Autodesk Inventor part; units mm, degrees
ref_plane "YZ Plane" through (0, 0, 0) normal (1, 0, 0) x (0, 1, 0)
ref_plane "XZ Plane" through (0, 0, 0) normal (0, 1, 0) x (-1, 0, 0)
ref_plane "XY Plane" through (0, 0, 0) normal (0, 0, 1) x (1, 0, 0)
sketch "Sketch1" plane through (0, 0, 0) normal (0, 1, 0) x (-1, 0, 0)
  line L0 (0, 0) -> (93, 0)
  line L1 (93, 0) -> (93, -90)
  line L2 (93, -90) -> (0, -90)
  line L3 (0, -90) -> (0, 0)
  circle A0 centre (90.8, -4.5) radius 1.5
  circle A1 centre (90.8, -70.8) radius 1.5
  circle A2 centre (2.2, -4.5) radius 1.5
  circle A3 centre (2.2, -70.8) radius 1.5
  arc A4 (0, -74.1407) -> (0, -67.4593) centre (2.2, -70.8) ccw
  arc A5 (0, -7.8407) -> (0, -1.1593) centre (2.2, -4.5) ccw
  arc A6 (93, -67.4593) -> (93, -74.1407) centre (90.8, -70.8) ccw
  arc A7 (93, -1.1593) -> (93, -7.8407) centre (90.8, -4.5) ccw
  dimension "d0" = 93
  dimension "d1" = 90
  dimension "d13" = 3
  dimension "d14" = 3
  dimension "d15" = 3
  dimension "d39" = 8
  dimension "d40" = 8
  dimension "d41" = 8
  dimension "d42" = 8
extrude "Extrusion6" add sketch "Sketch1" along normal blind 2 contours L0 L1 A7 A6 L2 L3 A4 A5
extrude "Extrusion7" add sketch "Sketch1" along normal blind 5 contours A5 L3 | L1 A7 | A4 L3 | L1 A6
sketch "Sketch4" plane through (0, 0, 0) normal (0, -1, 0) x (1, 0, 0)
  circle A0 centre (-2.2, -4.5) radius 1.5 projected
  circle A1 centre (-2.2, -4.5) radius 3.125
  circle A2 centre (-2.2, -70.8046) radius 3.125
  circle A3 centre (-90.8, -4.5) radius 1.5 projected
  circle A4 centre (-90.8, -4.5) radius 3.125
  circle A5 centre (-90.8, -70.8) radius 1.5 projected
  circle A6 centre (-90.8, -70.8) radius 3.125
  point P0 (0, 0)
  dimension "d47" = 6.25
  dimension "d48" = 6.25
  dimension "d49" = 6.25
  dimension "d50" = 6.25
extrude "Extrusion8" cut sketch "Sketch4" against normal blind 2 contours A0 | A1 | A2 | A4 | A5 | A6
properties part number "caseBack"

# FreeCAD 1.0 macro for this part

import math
import FreeCAD as App
import Part
import Sketcher

doc = App.newDocument("Part")
body = doc.addObject("PartDesign::Body", "Body")

# Sketch on XZ plane
sketch1 = doc.addObject("Sketcher::SketchObject", "Sketch")
body.addObject(sketch1)
sketch1.AttachmentSupport = (doc.XZ_Plane, [""])
sketch1.MapMode = "FlatFace"
sketch1.addGeometry(Part.LineSegment(App.Vector(-93, 0, 0), App.Vector(0, 0, 0)), False)
sketch1.addGeometry(Part.LineSegment(App.Vector(0, 0, 0), App.Vector(0, -1.2, 0)), False)
sketch1.addGeometry(Part.ArcOfCircle(Part.Circle(App.Vector(-2.2, -4.5, 0), App.Vector(0, 0, 1), 4), math.radians(57), math.radians(303)), False)
sketch1.addGeometry(Part.LineSegment(App.Vector(0, -7.8, 0), App.Vector(0, -67.5, 0)), False)
sketch1.addGeometry(Part.ArcOfCircle(Part.Circle(App.Vector(-2.2, -70.8, 0), App.Vector(0, 0, 1), 4), math.radians(57), math.radians(303)), False)
sketch1.addGeometry(Part.LineSegment(App.Vector(0, -74.1, 0), App.Vector(0, -90, 0)), False)
sketch1.addGeometry(Part.LineSegment(App.Vector(0, -90, 0), App.Vector(-93, -90, 0)), False)
sketch1.addGeometry(Part.LineSegment(App.Vector(-93, -90, 0), App.Vector(-93, -74.1, 0)), False)
sketch1.addGeometry(Part.ArcOfCircle(Part.Circle(App.Vector(-90.8, -70.8, 0), App.Vector(0, 0, 1), 4), math.radians(-123), math.radians(123)), False)
sketch1.addGeometry(Part.LineSegment(App.Vector(-93, -67.5, 0), App.Vector(-93, -7.8, 0)), False)
sketch1.addGeometry(Part.ArcOfCircle(Part.Circle(App.Vector(-90.8, -4.5, 0), App.Vector(0, 0, 1), 4), math.radians(-123), math.radians(123)), False)
sketch1.addGeometry(Part.LineSegment(App.Vector(-93, -1.2, 0), App.Vector(-93, 0, 0)), False)
sketch1.addConstraint(Sketcher.Constraint("Coincident", 0, 2, 1, 1))
sketch1.addConstraint(Sketcher.Constraint("Coincident", 1, 2, 2, 1))
sketch1.addConstraint(Sketcher.Constraint("Coincident", 2, 2, 3, 1))
sketch1.addConstraint(Sketcher.Constraint("Coincident", 3, 2, 4, 1))
sketch1.addConstraint(Sketcher.Constraint("Coincident", 4, 2, 5, 1))
sketch1.addConstraint(Sketcher.Constraint("Coincident", 5, 2, 6, 1))
sketch1.addConstraint(Sketcher.Constraint("Coincident", 6, 2, 7, 1))
sketch1.addConstraint(Sketcher.Constraint("Coincident", 7, 2, 8, 1))
sketch1.addConstraint(Sketcher.Constraint("Coincident", 8, 2, 9, 1))
sketch1.addConstraint(Sketcher.Constraint("Coincident", 9, 2, 10, 1))
sketch1.addConstraint(Sketcher.Constraint("Coincident", 10, 2, 11, 1))
sketch1.addConstraint(Sketcher.Constraint("Coincident", 11, 2, 0, 1))
sketch1.addConstraint(Sketcher.Constraint("Horizontal", 0))
sketch1.addConstraint(Sketcher.Constraint("Vertical", 1))
sketch1.addConstraint(Sketcher.Constraint("Vertical", 3))
sketch1.addConstraint(Sketcher.Constraint("Vertical", 5))
sketch1.addConstraint(Sketcher.Constraint("Horizontal", 6))
sketch1.addConstraint(Sketcher.Constraint("Vertical", 7))
sketch1.addConstraint(Sketcher.Constraint("Vertical", 9))
sketch1.addConstraint(Sketcher.Constraint("Vertical", 11))
sketch1.addConstraint(Sketcher.Constraint("Coincident", 0, 2, -1, 1))
sketch1.addConstraint(Sketcher.Constraint("Equal", 2, 4))
sketch1.addConstraint(Sketcher.Constraint("Equal", 4, 8))
sketch1.addConstraint(Sketcher.Constraint("Equal", 8, 10))
sketch1.addConstraint(Sketcher.Constraint("PointOnObject", 2, 2, -2))
sketch1.addConstraint(Sketcher.Constraint("PointOnObject", 4, 2, -2))
sketch1.addConstraint(Sketcher.Constraint("Horizontal", 4, 3, 8, 3))
sketch1.addConstraint(Sketcher.Constraint("Horizontal", 2, 3, 10, 3))
sketch1.addConstraint(Sketcher.Constraint("Horizontal", 4, 2, 7, 2))
sketch1.addConstraint(Sketcher.Constraint("Horizontal", 3, 2, 8, 2))
sketch1.addConstraint(Sketcher.Constraint("Horizontal", 2, 2, 9, 2))
sketch1.addConstraint(Sketcher.Constraint("Horizontal", 1, 2, 10, 2))
sketch1.addConstraint(Sketcher.Constraint("Vertical", 2, 3, 4, 3))
sketch1.addConstraint(Sketcher.Constraint("Radius", 2, 4.0))
sketch1.addConstraint(Sketcher.Constraint("DistanceX", 0, 1, 0, 2, 93.0))
sketch1.addConstraint(Sketcher.Constraint("DistanceY", 5, 2, -1, 1, 90.0))
sketch1.addConstraint(Sketcher.Constraint("DistanceX", 2, 3, -1, 1, 2.2))
sketch1.addConstraint(Sketcher.Constraint("DistanceY", 2, 3, -1, 1, 4.5))
sketch1.addConstraint(Sketcher.Constraint("DistanceY", 4, 3, -1, 1, 70.8))
pad1 = doc.addObject("PartDesign::Pad", "Pad")
body.addObject(pad1)
pad1.Profile = sketch1
pad1.Length = 2
pad1.Reversed = True

# Sketch on XZ plane
sketch2 = doc.addObject("Sketcher::SketchObject", "Sketch001")
body.addObject(sketch2)
sketch2.AttachmentSupport = (doc.XZ_Plane, [""])
sketch2.MapMode = "FlatFace"
sketch2.addGeometry(Part.ArcOfCircle(Part.Circle(App.Vector(-2.2, -4.5, 0), App.Vector(0, 0, 1), 4), math.radians(57), math.radians(303)), False)
sketch2.addGeometry(Part.LineSegment(App.Vector(0, -1.2, 0), App.Vector(0, -7.8, 0)), False)
sketch2.addGeometry(Part.Circle(App.Vector(-2.2, -4.5, 0), App.Vector(0, 0, 1), 1.5), False)
sketch2.addGeometry(Part.LineSegment(App.Vector(-93, -7.8, 0), App.Vector(-93, -1.2, 0)), False)
sketch2.addGeometry(Part.ArcOfCircle(Part.Circle(App.Vector(-90.8, -4.5, 0), App.Vector(0, 0, 1), 4), math.radians(-123), math.radians(123)), False)
sketch2.addGeometry(Part.Circle(App.Vector(-90.8, -4.5, 0), App.Vector(0, 0, 1), 1.5), False)
sketch2.addGeometry(Part.ArcOfCircle(Part.Circle(App.Vector(-2.2, -70.8, 0), App.Vector(0, 0, 1), 4), math.radians(57), math.radians(303)), False)
sketch2.addGeometry(Part.LineSegment(App.Vector(0, -67.5, 0), App.Vector(0, -74.1, 0)), False)
sketch2.addGeometry(Part.Circle(App.Vector(-2.2, -70.8, 0), App.Vector(0, 0, 1), 1.5), False)
sketch2.addGeometry(Part.LineSegment(App.Vector(-93, -74.1, 0), App.Vector(-93, -67.5, 0)), False)
sketch2.addGeometry(Part.ArcOfCircle(Part.Circle(App.Vector(-90.8, -70.8, 0), App.Vector(0, 0, 1), 4), math.radians(-123), math.radians(123)), False)
sketch2.addGeometry(Part.Circle(App.Vector(-90.8, -70.8, 0), App.Vector(0, 0, 1), 1.5), False)
sketch2.addConstraint(Sketcher.Constraint("Coincident", 0, 1, 1, 1))
sketch2.addConstraint(Sketcher.Constraint("Coincident", 1, 2, 0, 2))
sketch2.addConstraint(Sketcher.Constraint("Coincident", 3, 1, 4, 1))
sketch2.addConstraint(Sketcher.Constraint("Coincident", 4, 2, 3, 2))
sketch2.addConstraint(Sketcher.Constraint("Coincident", 6, 1, 7, 1))
sketch2.addConstraint(Sketcher.Constraint("Coincident", 7, 2, 6, 2))
sketch2.addConstraint(Sketcher.Constraint("Coincident", 9, 1, 10, 1))
sketch2.addConstraint(Sketcher.Constraint("Coincident", 10, 2, 9, 2))
sketch2.addConstraint(Sketcher.Constraint("Vertical", 1))
sketch2.addConstraint(Sketcher.Constraint("Vertical", 3))
sketch2.addConstraint(Sketcher.Constraint("Vertical", 7))
sketch2.addConstraint(Sketcher.Constraint("Vertical", 9))
sketch2.addConstraint(Sketcher.Constraint("Coincident", 2, 3, 0, 3))
sketch2.addConstraint(Sketcher.Constraint("Coincident", 5, 3, 4, 3))
sketch2.addConstraint(Sketcher.Constraint("Coincident", 8, 3, 6, 3))
sketch2.addConstraint(Sketcher.Constraint("Coincident", 11, 3, 10, 3))
sketch2.addConstraint(Sketcher.Constraint("Equal", 0, 4))
sketch2.addConstraint(Sketcher.Constraint("Equal", 2, 5))
sketch2.addConstraint(Sketcher.Constraint("Equal", 4, 6))
sketch2.addConstraint(Sketcher.Constraint("Equal", 5, 8))
sketch2.addConstraint(Sketcher.Constraint("Equal", 6, 10))
sketch2.addConstraint(Sketcher.Constraint("Equal", 8, 11))
sketch2.addConstraint(Sketcher.Constraint("PointOnObject", 0, 1, -2))
sketch2.addConstraint(Sketcher.Constraint("PointOnObject", 6, 1, -2))
sketch2.addConstraint(Sketcher.Constraint("Horizontal", 2, 3, 4, 3))
sketch2.addConstraint(Sketcher.Constraint("Horizontal", 8, 3, 10, 3))
sketch2.addConstraint(Sketcher.Constraint("Horizontal", 1, 2, 3, 1))
sketch2.addConstraint(Sketcher.Constraint("Horizontal", 7, 2, 9, 1))
sketch2.addConstraint(Sketcher.Constraint("Vertical", 2, 3, 6, 3))
sketch2.addConstraint(Sketcher.Constraint("Vertical", 5, 3, 10, 3))
sketch2.addConstraint(Sketcher.Constraint("Diameter", 2, 3.0))
sketch2.addConstraint(Sketcher.Constraint("Radius", 0, 4.0))
sketch2.addConstraint(Sketcher.Constraint("DistanceX", 3, 1, -1, 1, 93.0))
sketch2.addConstraint(Sketcher.Constraint("DistanceX", 0, 3, -1, 1, 2.2))
sketch2.addConstraint(Sketcher.Constraint("DistanceY", 0, 3, -1, 1, 4.5))
sketch2.addConstraint(Sketcher.Constraint("DistanceY", 6, 3, -1, 1, 70.8))
pad2 = doc.addObject("PartDesign::Pad", "Pad001")
body.addObject(pad2)
pad2.Profile = sketch2
pad2.Length = 5
pad2.Reversed = True

# Sketch on XZ plane
sketch3 = doc.addObject("Sketcher::SketchObject", "Sketch002")
body.addObject(sketch3)
sketch3.AttachmentSupport = (doc.XZ_Plane, [""])
sketch3.MapMode = "FlatFace"
sketch3.addGeometry(Part.Circle(App.Vector(-2.2, -4.5, 0), App.Vector(0, 0, 1), 3.1), False)
sketch3.addGeometry(Part.Circle(App.Vector(-2.2, -70.8, 0), App.Vector(0, 0, 1), 3.1), False)
sketch3.addGeometry(Part.Circle(App.Vector(-90.8, -4.5, 0), App.Vector(0, 0, 1), 3.1), False)
sketch3.addGeometry(Part.Circle(App.Vector(-90.8, -4.5, 0), App.Vector(0, 0, 1), 1.5), False)
sketch3.addGeometry(Part.Circle(App.Vector(-90.8, -70.8, 0), App.Vector(0, 0, 1), 3.1), False)
sketch3.addConstraint(Sketcher.Constraint("Coincident", 3, 3, 2, 3))
sketch3.addConstraint(Sketcher.Constraint("Equal", 0, 1))
sketch3.addConstraint(Sketcher.Constraint("Equal", 1, 2))
sketch3.addConstraint(Sketcher.Constraint("Equal", 2, 4))
sketch3.addConstraint(Sketcher.Constraint("Horizontal", 0, 3, 2, 3))
sketch3.addConstraint(Sketcher.Constraint("Vertical", 0, 3, 1, 3))
sketch3.addConstraint(Sketcher.Constraint("Vertical", 3, 3, 4, 3))
sketch3.addConstraint(Sketcher.Constraint("Diameter", 0, 6.25))
sketch3.addConstraint(Sketcher.Constraint("Diameter", 3, 3.0))
sketch3.addConstraint(Sketcher.Constraint("DistanceX", 0, 3, -1, 1, 2.2))
sketch3.addConstraint(Sketcher.Constraint("DistanceY", 0, 3, -1, 1, 4.5))
sketch3.addConstraint(Sketcher.Constraint("DistanceX", 2, 3, -1, 1, 90.8))
sketch3.addConstraint(Sketcher.Constraint("DistanceY", 4, 3, -1, 1, 70.8))
sketch3.addConstraint(Sketcher.Constraint("DistanceY", 1, 3, -1, 1, 70.8046))
pocket1 = doc.addObject("PartDesign::Pocket", "Pocket")
body.addObject(pocket1)
pocket1.Profile = sketch3
pocket1.Length = 2

doc.recompute()
